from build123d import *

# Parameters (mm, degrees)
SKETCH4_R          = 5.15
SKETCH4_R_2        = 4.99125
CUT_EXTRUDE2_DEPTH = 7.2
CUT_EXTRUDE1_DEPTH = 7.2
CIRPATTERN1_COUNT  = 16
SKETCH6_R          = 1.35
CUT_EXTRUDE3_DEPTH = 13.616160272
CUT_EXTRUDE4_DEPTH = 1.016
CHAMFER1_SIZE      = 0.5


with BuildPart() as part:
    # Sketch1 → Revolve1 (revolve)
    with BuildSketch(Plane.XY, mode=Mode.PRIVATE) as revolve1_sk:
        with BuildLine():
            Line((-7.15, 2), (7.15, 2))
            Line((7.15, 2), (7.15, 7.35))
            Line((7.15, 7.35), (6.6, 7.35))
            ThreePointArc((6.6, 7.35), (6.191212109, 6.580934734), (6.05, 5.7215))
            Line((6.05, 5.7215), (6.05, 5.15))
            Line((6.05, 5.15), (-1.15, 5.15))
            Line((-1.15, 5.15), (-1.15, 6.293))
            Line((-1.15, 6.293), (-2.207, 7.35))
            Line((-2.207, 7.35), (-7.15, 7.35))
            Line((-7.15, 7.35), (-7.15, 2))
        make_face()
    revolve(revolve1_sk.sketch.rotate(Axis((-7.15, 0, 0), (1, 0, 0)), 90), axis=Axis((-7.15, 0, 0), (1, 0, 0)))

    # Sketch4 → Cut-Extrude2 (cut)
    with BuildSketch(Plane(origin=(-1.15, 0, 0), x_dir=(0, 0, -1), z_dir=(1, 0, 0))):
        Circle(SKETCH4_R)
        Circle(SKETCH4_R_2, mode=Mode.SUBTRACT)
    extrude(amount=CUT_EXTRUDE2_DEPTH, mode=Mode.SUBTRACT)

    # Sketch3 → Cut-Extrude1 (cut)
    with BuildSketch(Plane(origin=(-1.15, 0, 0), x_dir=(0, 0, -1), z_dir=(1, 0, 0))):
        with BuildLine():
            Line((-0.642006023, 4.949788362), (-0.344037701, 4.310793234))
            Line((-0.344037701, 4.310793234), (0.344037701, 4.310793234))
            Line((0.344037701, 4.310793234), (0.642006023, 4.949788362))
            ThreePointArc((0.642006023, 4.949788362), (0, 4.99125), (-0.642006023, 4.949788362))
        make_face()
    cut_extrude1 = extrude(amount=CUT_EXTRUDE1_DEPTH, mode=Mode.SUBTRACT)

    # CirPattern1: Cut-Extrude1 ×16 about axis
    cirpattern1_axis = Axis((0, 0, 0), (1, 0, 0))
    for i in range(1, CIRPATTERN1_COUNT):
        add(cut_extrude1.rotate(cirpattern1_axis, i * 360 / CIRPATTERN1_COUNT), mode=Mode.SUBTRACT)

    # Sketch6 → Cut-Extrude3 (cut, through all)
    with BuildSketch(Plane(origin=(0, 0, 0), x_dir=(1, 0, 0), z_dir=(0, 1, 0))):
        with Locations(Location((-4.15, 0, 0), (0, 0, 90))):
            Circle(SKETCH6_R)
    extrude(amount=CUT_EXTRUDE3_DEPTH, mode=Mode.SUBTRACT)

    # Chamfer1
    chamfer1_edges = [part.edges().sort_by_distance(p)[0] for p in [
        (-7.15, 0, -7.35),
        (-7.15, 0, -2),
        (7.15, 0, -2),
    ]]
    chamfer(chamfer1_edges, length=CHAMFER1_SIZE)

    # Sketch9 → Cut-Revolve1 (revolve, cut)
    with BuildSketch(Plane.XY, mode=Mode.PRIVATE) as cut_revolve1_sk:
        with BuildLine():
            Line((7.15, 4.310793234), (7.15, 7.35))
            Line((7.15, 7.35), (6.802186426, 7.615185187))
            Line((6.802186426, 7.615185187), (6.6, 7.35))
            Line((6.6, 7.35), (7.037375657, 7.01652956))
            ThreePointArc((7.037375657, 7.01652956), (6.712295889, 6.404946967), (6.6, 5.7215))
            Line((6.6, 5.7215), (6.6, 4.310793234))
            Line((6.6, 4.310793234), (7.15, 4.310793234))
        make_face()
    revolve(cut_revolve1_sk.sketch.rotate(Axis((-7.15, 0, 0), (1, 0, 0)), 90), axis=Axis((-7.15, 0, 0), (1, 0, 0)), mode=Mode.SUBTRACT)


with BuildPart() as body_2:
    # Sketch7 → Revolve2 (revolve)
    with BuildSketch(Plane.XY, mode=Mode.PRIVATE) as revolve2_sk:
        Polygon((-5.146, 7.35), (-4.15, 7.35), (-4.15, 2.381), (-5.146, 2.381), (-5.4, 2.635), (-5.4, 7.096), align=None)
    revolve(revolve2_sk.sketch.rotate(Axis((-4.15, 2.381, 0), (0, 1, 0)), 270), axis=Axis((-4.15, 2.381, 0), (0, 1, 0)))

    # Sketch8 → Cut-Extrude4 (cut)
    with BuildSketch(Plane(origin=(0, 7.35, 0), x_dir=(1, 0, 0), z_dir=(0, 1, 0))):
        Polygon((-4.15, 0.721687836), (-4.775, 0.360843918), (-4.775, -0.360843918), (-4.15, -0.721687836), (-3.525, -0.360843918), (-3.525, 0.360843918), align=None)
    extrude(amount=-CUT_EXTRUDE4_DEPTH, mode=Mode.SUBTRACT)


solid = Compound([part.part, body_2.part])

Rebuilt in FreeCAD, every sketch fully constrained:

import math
import FreeCAD as App
import Part
import Sketcher
from FreeCAD import Vector
Q = App.Units.Quantity


def edges_at(feature, points):
    """Names of the edges that pass closest to the given points."""
    edges = feature.Shape.Edges
    near = lambda p: min(range(len(edges)), key=lambda i: edges[i].distToShape(Part.Vertex(*p))[0])
    return sorted({f"Edge{near(p) + 1}" for p in points})


def add_polygon(sketch, points):
    """Adds a closed chain of lines whose ends are joined by coincident constraints."""
    first, n = sketch.GeometryCount, len(points)
    for a, b in zip(points, points[1:] + points[:1]):
        sketch.addGeometry(Part.LineSegment(App.Vector(*a, 0), App.Vector(*b, 0)), False)
    for i in range(n):
        sketch.addConstraint(Sketcher.Constraint("Coincident", first + i, 2, first + (i + 1) % n, 1))

doc = App.newDocument("Part")
params = doc.addObject("Spreadsheet::Sheet", "Params")
for row, (alias, value) in enumerate([
    ("sketch1_width", "14.3 mm"),
    ("sketch1_width2", "7.2 mm"),
    ("sketch1_width3", "0.55 mm"),
    ("sketch1_height", "5.35 mm"),
    ("revolution_angle", "360 deg"),
    ("sketch2_diameter", "10.3 mm"),
    ("pocket1_length", "7.2 mm"),
    ("pocket2_length", "7.2 mm"),
    ("sketch4_diameter", "2.7 mm"),
    ("chamfer_size", "0.5 mm"),
    ("sketch5_width", "0.55 mm"),
    ("sketch5_length", "0.55 mm"),
    ("groove_angle", "360 deg"),
    ("revolution2_angle", "360 deg"),
    ("pocket4_length", "1.016 mm"),
], start=1):
    params.set(f"A{row}", alias)
    params.set(f"B{row}", "=" + value)
    params.setAlias(f"B{row}", alias)

body = doc.addObject("PartDesign::Body", "Body")

sketch1 = doc.addObject("Sketcher::SketchObject", "Sketch")
body.addObject(sketch1)
sketch1.AttachmentSupport = (doc.XY_Plane, [""])
sketch1.MapMode = "FlatFace"
sketch1.addGeometry(Part.LineSegment(Vector(-7.2, 2, 0), Vector(7.2, 2, 0)), False)
sketch1.addGeometry(Part.LineSegment(Vector(7.2, 2, 0), Vector(7.2, 7.3, 0)), False)
sketch1.addGeometry(Part.LineSegment(Vector(7.2, 7.3, 0), Vector(6.6, 7.3, 0)), False)
sketch1.addGeometry(Part.ArcOfCircle(Part.Circle(Vector(8.7, 5.7, 0), Vector(0, 0, 1), 2.7), math.radians(143), math.radians(180)), False)
sketch1.addGeometry(Part.LineSegment(Vector(6, 5.7, 0), Vector(6, 5.2, 0)), False)
sketch1.addGeometry(Part.LineSegment(Vector(6, 5.2, 0), Vector(-1.1, 5.2, 0)), False)
sketch1.addGeometry(Part.LineSegment(Vector(-1.1, 5.2, 0), Vector(-1.1, 6.3, 0)), False)
sketch1.addGeometry(Part.LineSegment(Vector(-1.1, 6.3, 0), Vector(-2.2, 7.3, 0)), False)
sketch1.addGeometry(Part.LineSegment(Vector(-2.2, 7.3, 0), Vector(-7.2, 7.3, 0)), False)
sketch1.addGeometry(Part.LineSegment(Vector(-7.2, 7.3, 0), Vector(-7.2, 2, 0)), False)
sketch1.addConstraint(Sketcher.Constraint("Coincident", 0, 2, 1, 1))
sketch1.addConstraint(Sketcher.Constraint("Coincident", 1, 2, 2, 1))
sketch1.addConstraint(Sketcher.Constraint("Coincident", 2, 2, 3, 1))
sketch1.addConstraint(Sketcher.Constraint("Tangent", 3, 2, 4, 1))
sketch1.addConstraint(Sketcher.Constraint("Coincident", 4, 2, 5, 1))
sketch1.addConstraint(Sketcher.Constraint("Coincident", 5, 2, 6, 1))
sketch1.addConstraint(Sketcher.Constraint("Coincident", 6, 2, 7, 1))
sketch1.addConstraint(Sketcher.Constraint("Coincident", 7, 2, 8, 1))
sketch1.addConstraint(Sketcher.Constraint("Coincident", 8, 2, 9, 1))
sketch1.addConstraint(Sketcher.Constraint("Coincident", 9, 2, 0, 1))
sketch1.addConstraint(Sketcher.Constraint("Horizontal", 0))
sketch1.addConstraint(Sketcher.Constraint("Vertical", 1))
sketch1.addConstraint(Sketcher.Constraint("Horizontal", 2))
sketch1.addConstraint(Sketcher.Constraint("Vertical", 4))
sketch1.addConstraint(Sketcher.Constraint("Horizontal", 5))
sketch1.addConstraint(Sketcher.Constraint("Vertical", 6))
sketch1.addConstraint(Sketcher.Constraint("Horizontal", 8))
sketch1.addConstraint(Sketcher.Constraint("Vertical", 9))
sketch1.addConstraint(Sketcher.Constraint("Symmetric", 1, 2, 8, 2, -2))
sketch1.addConstraint(Sketcher.Constraint("Angle", 7, Q("135 deg")))
sketch1.addConstraint(Sketcher.Constraint("DistanceX", 0, 1, 0, 2, Q("14.3 mm")))
sketch1.addConstraint(Sketcher.Constraint("DistanceX", 5, 2, 5, 1, Q("7.2 mm")))
sketch1.addConstraint(Sketcher.Constraint("DistanceY", -1, 1, 0, 2, Q("2 mm")))
sketch1.addConstraint(Sketcher.Constraint("DistanceX", 8, 2, 6, 2, Q("6 mm")))
sketch1.addConstraint(Sketcher.Constraint("DistanceX", 2, 2, 2, 1, Q("0.55 mm")))
sketch1.addConstraint(Sketcher.Constraint("DistanceY", 1, 1, 1, 2, Q("5.35 mm")))
sketch1.addConstraint(Sketcher.Constraint("DistanceY", 4, 2, 2, 2, Q("2.2 mm")))
sketch1.addConstraint(Sketcher.Constraint("DistanceX", 8, 2, 8, 1, Q("4.943 mm")))
sketch1.addConstraint(Sketcher.Constraint("Radius", 3, Q("2.68592 mm")))
sketch1.setExpression("Constraints[20]", "Params.sketch1_width")
sketch1.setExpression("Constraints[21]", "Params.sketch1_width2")
sketch1.setExpression("Constraints[24]", "Params.sketch1_width3")
sketch1.setExpression("Constraints[25]", "Params.sketch1_height")
revolution = doc.addObject("PartDesign::Revolution", "Revolution")
body.addObject(revolution)
revolution.Profile = sketch1
revolution.ReferenceAxis = (sketch1, ["H_Axis"])
revolution.setExpression("Angle", "Params.revolution_angle")

sketch2 = doc.addObject("Sketcher::SketchObject", "Sketch001")
body.addObject(sketch2)
sketch2.AttachmentSupport = (doc.YZ_Plane, [""])
sketch2.MapMode = "FlatFace"
sketch2.AttachmentOffset = App.Placement(Vector(0, 0, -1.15), App.Rotation())
sketch2.addGeometry(Part.Circle(Vector(0, 0, 0), Vector(0, 0, 1), 5.2), False)
sketch2.addGeometry(Part.Circle(Vector(0, 0, 0), Vector(0, 0, 1), 5), False)
sketch2.addConstraint(Sketcher.Constraint("Coincident", 0, 3, -1, 1))
sketch2.addConstraint(Sketcher.Constraint("Coincident", 1, 3, -1, 1))
sketch2.addConstraint(Sketcher.Constraint("Diameter", 0, Q("10.3 mm")))
sketch2.addConstraint(Sketcher.Constraint("Diameter", 1, Q("9.9825 mm")))
sketch2.setExpression("Constraints[2]", "Params.sketch2_diameter")
pocket1 = doc.addObject("PartDesign::Pocket", "Pocket")
body.addObject(pocket1)
pocket1.Profile = sketch2
pocket1.setExpression("Length", "Params.pocket1_length")
pocket1.Reversed = True

sketch3 = doc.addObject("Sketcher::SketchObject", "Sketch002")
body.addObject(sketch3)
sketch3.AttachmentSupport = (doc.YZ_Plane, [""])
sketch3.MapMode = "FlatFace"
sketch3.AttachmentOffset = App.Placement(Vector(0, 0, -1.15), App.Rotation())
sketch3.addGeometry(Part.LineSegment(Vector(4.9, 0.6, 0), Vector(4.3, 0.3, 0)), False)
sketch3.addGeometry(Part.LineSegment(Vector(4.3, 0.3, 0), Vector(4.3, -0.3, 0)), False)
sketch3.addGeometry(Part.LineSegment(Vector(4.3, -0.3, 0), Vector(4.9, -0.6, 0)), False)
sketch3.addGeometry(Part.ArcOfCircle(Part.Circle(Vector(0, 0, 0), Vector(0, 0, 1), 5), math.radians(-7.39), math.radians(7.39)), False)
sketch3.addConstraint(Sketcher.Constraint("Coincident", 0, 2, 1, 1))
sketch3.addConstraint(Sketcher.Constraint("Coincident", 1, 2, 2, 1))
sketch3.addConstraint(Sketcher.Constraint("Coincident", 2, 2, 3, 1))
sketch3.addConstraint(Sketcher.Constraint("Coincident", 3, 2, 0, 1))
sketch3.addConstraint(Sketcher.Constraint("Vertical", 1))
sketch3.addConstraint(Sketcher.Constraint("Coincident", 3, 3, -1, 1))
sketch3.addConstraint(Sketcher.Constraint("Vertical", 2, 2, 3, 2))
sketch3.addConstraint(Sketcher.Constraint("Equal", 0, 2))
sketch3.addConstraint(Sketcher.Constraint("Angle", 0, Q("-155 deg")))
sketch3.addConstraint(Sketcher.Constraint("Radius", 3, Q("4.99125 mm")))
sketch3.addConstraint(Sketcher.Constraint("DistanceY", 1, 2, 1, 1, Q("0.688075 mm")))
sketch3.addConstraint(Sketcher.Constraint("DistanceX", -1, 1, 2, 2, Q("4.949788 mm")))
pocket2 = doc.addObject("PartDesign::Pocket", "Pocket001")
body.addObject(pocket2)
pocket2.Profile = sketch3
pocket2.setExpression("Length", "Params.pocket2_length")
pocket2.Reversed = True
doc.recompute()

polarpattern = doc.addObject("PartDesign::PolarPattern", "PolarPattern")
body.addObject(polarpattern)
polarpattern.Originals = [pocket2]
polarpattern.Axis = (doc.X_Axis, [""])
polarpattern.Angle = 360
polarpattern.Occurrences = 16
body.Tip = polarpattern

sketch4 = doc.addObject("Sketcher::SketchObject", "Sketch003")
body.addObject(sketch4)
sketch4.AttachmentSupport = (doc.XZ_Plane, [""])
sketch4.MapMode = "FlatFace"
sketch4.addGeometry(Part.Circle(Vector(-4.2, 0, 0), Vector(0, 0, 1), 1.4), False)
sketch4.addConstraint(Sketcher.Constraint("PointOnObject", 0, 3, -1))
sketch4.addConstraint(Sketcher.Constraint("Diameter", 0, Q("2.7 mm")))
sketch4.addConstraint(Sketcher.Constraint("DistanceX", 0, 3, -1, 1, Q("4.15 mm")))
sketch4.setExpression("Constraints[1]", "Params.sketch4_diameter")
pocket3 = doc.addObject("PartDesign::Pocket", "Pocket002")
body.addObject(pocket3)
pocket3.Profile = sketch4
pocket3.Type = "ThroughAll"
doc.recompute()

chamfer = doc.addObject("PartDesign::Chamfer", "Chamfer")
body.addObject(chamfer)
chamfer.Base = (pocket3, edges_at(pocket3, [(-7.15, 0, -7.35), (-7.15, 0, -2), (7.15, 0, -2)]))
chamfer.setExpression("Size", "Params.chamfer_size")

sketch5 = doc.addObject("Sketcher::SketchObject", "Sketch004")
body.addObject(sketch5)
sketch5.AttachmentSupport = (doc.XY_Plane, [""])
sketch5.MapMode = "FlatFace"
sketch5.addGeometry(Part.LineSegment(Vector(7.15, 4.31, 0), Vector(7.15, 7.35, 0)), False)
sketch5.addGeometry(Part.LineSegment(Vector(7.15, 7.35, 0), Vector(6.8, 7.62, 0)), False)
sketch5.addGeometry(Part.LineSegment(Vector(6.8, 7.62, 0), Vector(6.6, 7.35, 0)), False)
sketch5.addGeometry(Part.LineSegment(Vector(6.6, 7.35, 0), Vector(7.04, 7.02, 0)), False)
sketch5.addGeometry(Part.ArcOfCircle(Part.Circle(Vector(8.74, 5.72, 0), Vector(0, 0, 1), 2.14), math.radians(143), math.radians(180)), False)
sketch5.addGeometry(Part.LineSegment(Vector(6.6, 5.72, 0), Vector(6.6, 4.31, 0)), False)
sketch5.addGeometry(Part.LineSegment(Vector(6.6, 4.31, 0), Vector(7.15, 4.31, 0)), False)
sketch5.addConstraint(Sketcher.Constraint("Coincident", 0, 2, 1, 1))
sketch5.addConstraint(Sketcher.Constraint("Coincident", 1, 2, 2, 1))
sketch5.addConstraint(Sketcher.Constraint("Coincident", 2, 2, 3, 1))
sketch5.addConstraint(Sketcher.Constraint("Coincident", 3, 2, 4, 1))
sketch5.addConstraint(Sketcher.Constraint("Tangent", 4, 2, 5, 1))
sketch5.addConstraint(Sketcher.Constraint("Coincident", 5, 2, 6, 1))
sketch5.addConstraint(Sketcher.Constraint("Coincident", 6, 2, 0, 1))
sketch5.addConstraint(Sketcher.Constraint("Vertical", 0))
sketch5.addConstraint(Sketcher.Constraint("Vertical", 5))
sketch5.addConstraint(Sketcher.Constraint("Horizontal", 6))
sketch5.addConstraint(Sketcher.Constraint("Perpendicular", 1, 2))
sketch5.addConstraint(Sketcher.Constraint("Perpendicular", 2, 3))
sketch5.addConstraint(Sketcher.Constraint("Horizontal", 0, 2, 2, 2))
sketch5.addConstraint(Sketcher.Constraint("Vertical", 2, 2, 4, 2))
sketch5.addConstraint(Sketcher.Constraint("DistanceX", 6, 1, 6, 2, Q("0.55 mm")))
sketch5.addConstraint(Sketcher.Constraint("DistanceX", -1, 1, 2, 2, Q("6.6 mm")))
sketch5.addConstraint(Sketcher.Constraint("Distance", 3, Q("0.55 mm")))
sketch5.addConstraint(Sketcher.Constraint("DistanceY", -1, 1, 0, 2, Q("7.35 mm")))
sketch5.addConstraint(Sketcher.Constraint("Radius", 4, Q("2.13592 mm")))
sketch5.addConstraint(Sketcher.Constraint("Distance", 2, Q("0.33347 mm")))
sketch5.addConstraint(Sketcher.Constraint("DistanceY", 0, 1, 0, 2, Q("3.039207 mm")))
sketch5.setExpression("Constraints[14]", "Params.sketch5_width")
sketch5.setExpression("Constraints[16]", "Params.sketch5_length")
groove = doc.addObject("PartDesign::Groove", "Groove")
body.addObject(groove)
groove.Profile = sketch5
groove.ReferenceAxis = (sketch5, ["H_Axis"])
groove.setExpression("Angle", "Params.groove_angle")
body2 = doc.addObject("PartDesign::Body", "Body001")

sketch6 = doc.addObject("Sketcher::SketchObject", "Sketch005")
body2.addObject(sketch6)
sketch6.AttachmentSupport = (doc.getObject("XY_Plane001"), [""])
sketch6.MapMode = "FlatFace"
add_polygon(sketch6, [(-4.15, 7.35), (-5.15, 7.35), (-5.4, 7.1), (-5.4, 2.63), (-5.15, 2.38), (-4.15, 2.38)])
sketch6.addGeometry(Part.LineSegment(Vector(-4.15, 2.38, 0), Vector(-4.15, 7.35, 0)), True)
sketch6.addConstraint(Sketcher.Constraint("Horizontal", 0))
sketch6.addConstraint(Sketcher.Constraint("Vertical", 2))
sketch6.addConstraint(Sketcher.Constraint("Horizontal", 4))
sketch6.addConstraint(Sketcher.Constraint("Vertical", 5))
sketch6.addConstraint(Sketcher.Constraint("Vertical", 6))
sketch6.addConstraint(Sketcher.Constraint("Coincident", 6, 1, 4, 2))
sketch6.addConstraint(Sketcher.Constraint("Perpendicular", 1, 3))
sketch6.addConstraint(Sketcher.Constraint("Horizontal", 0, 2, 6, 2))
sketch6.addConstraint(Sketcher.Constraint("Vertical", 0, 2, 3, 2))
sketch6.addConstraint(Sketcher.Constraint("Equal", 1, 3))
sketch6.addConstraint(Sketcher.Constraint("DistanceX", 1, 2, -1, 1, Q("5.4 mm")))
sketch6.addConstraint(Sketcher.Constraint("DistanceX", 0, 2, 0, 1, Q("0.996 mm")))
sketch6.addConstraint(Sketcher.Constraint("DistanceY", 2, 2, 2, 1, Q("4.461 mm")))
sketch6.addConstraint(Sketcher.Constraint("DistanceY", 5, 1, 5, 2, Q("4.969 mm")))
sketch6.addConstraint(Sketcher.Constraint("DistanceY", -1, 1, 0, 2, Q("7.35 mm")))
revolution2 = doc.addObject("PartDesign::Revolution", "Revolution001")
body2.addObject(revolution2)
revolution2.Profile = sketch6
revolution2.ReferenceAxis = (sketch6, ["Axis0"])
revolution2.setExpression("Angle", "Params.revolution2_angle")

sketch7 = doc.addObject("Sketcher::SketchObject", "Sketch006")
body2.addObject(sketch7)
sketch7.AttachmentSupport = (doc.getObject("XZ_Plane001"), [""])
sketch7.MapMode = "FlatFace"
sketch7.AttachmentOffset = App.Placement(Vector(0, 0, -7.35), App.Rotation())
add_polygon(sketch7, [(-4.2, -0.7), (-4.8, -0.4), (-4.8, 0.4), (-4.2, 0.7), (-3.5, 0.4), (-3.5, -0.4)])
sketch7.addConstraint(Sketcher.Constraint("Vertical", 1))
sketch7.addConstraint(Sketcher.Constraint("Vertical", 4))
sketch7.addConstraint(Sketcher.Constraint("Symmetric", 2, 2, 5, 2, -1))
sketch7.addConstraint(Sketcher.Constraint("Parallel", 0, 3))
sketch7.addConstraint(Sketcher.Constraint("Parallel", 2, 5))
sketch7.addConstraint(Sketcher.Constraint("Horizontal", 1, 2, 3, 2))
sketch7.addConstraint(Sketcher.Constraint("Horizontal", 0, 2, 4, 2))
sketch7.addConstraint(Sketcher.Constraint("Angle", 0, Q("150 deg")))
sketch7.addConstraint(Sketcher.Constraint("DistanceX", 2, 2, -1, 1, Q("4.15 mm")))
sketch7.addConstraint(Sketcher.Constraint("DistanceX", 1, 2, 3, 2, Q("1.25 mm")))
sketch7.addConstraint(Sketcher.Constraint("DistanceY", 1, 1, 1, 2, Q("0.721688 mm")))
pocket4 = doc.addObject("PartDesign::Pocket", "Pocket003")
body2.addObject(pocket4)
pocket4.Profile = sketch7
pocket4.setExpression("Length", "Params.pocket4_length")
pocket4.Reversed = True

doc.recompute()
